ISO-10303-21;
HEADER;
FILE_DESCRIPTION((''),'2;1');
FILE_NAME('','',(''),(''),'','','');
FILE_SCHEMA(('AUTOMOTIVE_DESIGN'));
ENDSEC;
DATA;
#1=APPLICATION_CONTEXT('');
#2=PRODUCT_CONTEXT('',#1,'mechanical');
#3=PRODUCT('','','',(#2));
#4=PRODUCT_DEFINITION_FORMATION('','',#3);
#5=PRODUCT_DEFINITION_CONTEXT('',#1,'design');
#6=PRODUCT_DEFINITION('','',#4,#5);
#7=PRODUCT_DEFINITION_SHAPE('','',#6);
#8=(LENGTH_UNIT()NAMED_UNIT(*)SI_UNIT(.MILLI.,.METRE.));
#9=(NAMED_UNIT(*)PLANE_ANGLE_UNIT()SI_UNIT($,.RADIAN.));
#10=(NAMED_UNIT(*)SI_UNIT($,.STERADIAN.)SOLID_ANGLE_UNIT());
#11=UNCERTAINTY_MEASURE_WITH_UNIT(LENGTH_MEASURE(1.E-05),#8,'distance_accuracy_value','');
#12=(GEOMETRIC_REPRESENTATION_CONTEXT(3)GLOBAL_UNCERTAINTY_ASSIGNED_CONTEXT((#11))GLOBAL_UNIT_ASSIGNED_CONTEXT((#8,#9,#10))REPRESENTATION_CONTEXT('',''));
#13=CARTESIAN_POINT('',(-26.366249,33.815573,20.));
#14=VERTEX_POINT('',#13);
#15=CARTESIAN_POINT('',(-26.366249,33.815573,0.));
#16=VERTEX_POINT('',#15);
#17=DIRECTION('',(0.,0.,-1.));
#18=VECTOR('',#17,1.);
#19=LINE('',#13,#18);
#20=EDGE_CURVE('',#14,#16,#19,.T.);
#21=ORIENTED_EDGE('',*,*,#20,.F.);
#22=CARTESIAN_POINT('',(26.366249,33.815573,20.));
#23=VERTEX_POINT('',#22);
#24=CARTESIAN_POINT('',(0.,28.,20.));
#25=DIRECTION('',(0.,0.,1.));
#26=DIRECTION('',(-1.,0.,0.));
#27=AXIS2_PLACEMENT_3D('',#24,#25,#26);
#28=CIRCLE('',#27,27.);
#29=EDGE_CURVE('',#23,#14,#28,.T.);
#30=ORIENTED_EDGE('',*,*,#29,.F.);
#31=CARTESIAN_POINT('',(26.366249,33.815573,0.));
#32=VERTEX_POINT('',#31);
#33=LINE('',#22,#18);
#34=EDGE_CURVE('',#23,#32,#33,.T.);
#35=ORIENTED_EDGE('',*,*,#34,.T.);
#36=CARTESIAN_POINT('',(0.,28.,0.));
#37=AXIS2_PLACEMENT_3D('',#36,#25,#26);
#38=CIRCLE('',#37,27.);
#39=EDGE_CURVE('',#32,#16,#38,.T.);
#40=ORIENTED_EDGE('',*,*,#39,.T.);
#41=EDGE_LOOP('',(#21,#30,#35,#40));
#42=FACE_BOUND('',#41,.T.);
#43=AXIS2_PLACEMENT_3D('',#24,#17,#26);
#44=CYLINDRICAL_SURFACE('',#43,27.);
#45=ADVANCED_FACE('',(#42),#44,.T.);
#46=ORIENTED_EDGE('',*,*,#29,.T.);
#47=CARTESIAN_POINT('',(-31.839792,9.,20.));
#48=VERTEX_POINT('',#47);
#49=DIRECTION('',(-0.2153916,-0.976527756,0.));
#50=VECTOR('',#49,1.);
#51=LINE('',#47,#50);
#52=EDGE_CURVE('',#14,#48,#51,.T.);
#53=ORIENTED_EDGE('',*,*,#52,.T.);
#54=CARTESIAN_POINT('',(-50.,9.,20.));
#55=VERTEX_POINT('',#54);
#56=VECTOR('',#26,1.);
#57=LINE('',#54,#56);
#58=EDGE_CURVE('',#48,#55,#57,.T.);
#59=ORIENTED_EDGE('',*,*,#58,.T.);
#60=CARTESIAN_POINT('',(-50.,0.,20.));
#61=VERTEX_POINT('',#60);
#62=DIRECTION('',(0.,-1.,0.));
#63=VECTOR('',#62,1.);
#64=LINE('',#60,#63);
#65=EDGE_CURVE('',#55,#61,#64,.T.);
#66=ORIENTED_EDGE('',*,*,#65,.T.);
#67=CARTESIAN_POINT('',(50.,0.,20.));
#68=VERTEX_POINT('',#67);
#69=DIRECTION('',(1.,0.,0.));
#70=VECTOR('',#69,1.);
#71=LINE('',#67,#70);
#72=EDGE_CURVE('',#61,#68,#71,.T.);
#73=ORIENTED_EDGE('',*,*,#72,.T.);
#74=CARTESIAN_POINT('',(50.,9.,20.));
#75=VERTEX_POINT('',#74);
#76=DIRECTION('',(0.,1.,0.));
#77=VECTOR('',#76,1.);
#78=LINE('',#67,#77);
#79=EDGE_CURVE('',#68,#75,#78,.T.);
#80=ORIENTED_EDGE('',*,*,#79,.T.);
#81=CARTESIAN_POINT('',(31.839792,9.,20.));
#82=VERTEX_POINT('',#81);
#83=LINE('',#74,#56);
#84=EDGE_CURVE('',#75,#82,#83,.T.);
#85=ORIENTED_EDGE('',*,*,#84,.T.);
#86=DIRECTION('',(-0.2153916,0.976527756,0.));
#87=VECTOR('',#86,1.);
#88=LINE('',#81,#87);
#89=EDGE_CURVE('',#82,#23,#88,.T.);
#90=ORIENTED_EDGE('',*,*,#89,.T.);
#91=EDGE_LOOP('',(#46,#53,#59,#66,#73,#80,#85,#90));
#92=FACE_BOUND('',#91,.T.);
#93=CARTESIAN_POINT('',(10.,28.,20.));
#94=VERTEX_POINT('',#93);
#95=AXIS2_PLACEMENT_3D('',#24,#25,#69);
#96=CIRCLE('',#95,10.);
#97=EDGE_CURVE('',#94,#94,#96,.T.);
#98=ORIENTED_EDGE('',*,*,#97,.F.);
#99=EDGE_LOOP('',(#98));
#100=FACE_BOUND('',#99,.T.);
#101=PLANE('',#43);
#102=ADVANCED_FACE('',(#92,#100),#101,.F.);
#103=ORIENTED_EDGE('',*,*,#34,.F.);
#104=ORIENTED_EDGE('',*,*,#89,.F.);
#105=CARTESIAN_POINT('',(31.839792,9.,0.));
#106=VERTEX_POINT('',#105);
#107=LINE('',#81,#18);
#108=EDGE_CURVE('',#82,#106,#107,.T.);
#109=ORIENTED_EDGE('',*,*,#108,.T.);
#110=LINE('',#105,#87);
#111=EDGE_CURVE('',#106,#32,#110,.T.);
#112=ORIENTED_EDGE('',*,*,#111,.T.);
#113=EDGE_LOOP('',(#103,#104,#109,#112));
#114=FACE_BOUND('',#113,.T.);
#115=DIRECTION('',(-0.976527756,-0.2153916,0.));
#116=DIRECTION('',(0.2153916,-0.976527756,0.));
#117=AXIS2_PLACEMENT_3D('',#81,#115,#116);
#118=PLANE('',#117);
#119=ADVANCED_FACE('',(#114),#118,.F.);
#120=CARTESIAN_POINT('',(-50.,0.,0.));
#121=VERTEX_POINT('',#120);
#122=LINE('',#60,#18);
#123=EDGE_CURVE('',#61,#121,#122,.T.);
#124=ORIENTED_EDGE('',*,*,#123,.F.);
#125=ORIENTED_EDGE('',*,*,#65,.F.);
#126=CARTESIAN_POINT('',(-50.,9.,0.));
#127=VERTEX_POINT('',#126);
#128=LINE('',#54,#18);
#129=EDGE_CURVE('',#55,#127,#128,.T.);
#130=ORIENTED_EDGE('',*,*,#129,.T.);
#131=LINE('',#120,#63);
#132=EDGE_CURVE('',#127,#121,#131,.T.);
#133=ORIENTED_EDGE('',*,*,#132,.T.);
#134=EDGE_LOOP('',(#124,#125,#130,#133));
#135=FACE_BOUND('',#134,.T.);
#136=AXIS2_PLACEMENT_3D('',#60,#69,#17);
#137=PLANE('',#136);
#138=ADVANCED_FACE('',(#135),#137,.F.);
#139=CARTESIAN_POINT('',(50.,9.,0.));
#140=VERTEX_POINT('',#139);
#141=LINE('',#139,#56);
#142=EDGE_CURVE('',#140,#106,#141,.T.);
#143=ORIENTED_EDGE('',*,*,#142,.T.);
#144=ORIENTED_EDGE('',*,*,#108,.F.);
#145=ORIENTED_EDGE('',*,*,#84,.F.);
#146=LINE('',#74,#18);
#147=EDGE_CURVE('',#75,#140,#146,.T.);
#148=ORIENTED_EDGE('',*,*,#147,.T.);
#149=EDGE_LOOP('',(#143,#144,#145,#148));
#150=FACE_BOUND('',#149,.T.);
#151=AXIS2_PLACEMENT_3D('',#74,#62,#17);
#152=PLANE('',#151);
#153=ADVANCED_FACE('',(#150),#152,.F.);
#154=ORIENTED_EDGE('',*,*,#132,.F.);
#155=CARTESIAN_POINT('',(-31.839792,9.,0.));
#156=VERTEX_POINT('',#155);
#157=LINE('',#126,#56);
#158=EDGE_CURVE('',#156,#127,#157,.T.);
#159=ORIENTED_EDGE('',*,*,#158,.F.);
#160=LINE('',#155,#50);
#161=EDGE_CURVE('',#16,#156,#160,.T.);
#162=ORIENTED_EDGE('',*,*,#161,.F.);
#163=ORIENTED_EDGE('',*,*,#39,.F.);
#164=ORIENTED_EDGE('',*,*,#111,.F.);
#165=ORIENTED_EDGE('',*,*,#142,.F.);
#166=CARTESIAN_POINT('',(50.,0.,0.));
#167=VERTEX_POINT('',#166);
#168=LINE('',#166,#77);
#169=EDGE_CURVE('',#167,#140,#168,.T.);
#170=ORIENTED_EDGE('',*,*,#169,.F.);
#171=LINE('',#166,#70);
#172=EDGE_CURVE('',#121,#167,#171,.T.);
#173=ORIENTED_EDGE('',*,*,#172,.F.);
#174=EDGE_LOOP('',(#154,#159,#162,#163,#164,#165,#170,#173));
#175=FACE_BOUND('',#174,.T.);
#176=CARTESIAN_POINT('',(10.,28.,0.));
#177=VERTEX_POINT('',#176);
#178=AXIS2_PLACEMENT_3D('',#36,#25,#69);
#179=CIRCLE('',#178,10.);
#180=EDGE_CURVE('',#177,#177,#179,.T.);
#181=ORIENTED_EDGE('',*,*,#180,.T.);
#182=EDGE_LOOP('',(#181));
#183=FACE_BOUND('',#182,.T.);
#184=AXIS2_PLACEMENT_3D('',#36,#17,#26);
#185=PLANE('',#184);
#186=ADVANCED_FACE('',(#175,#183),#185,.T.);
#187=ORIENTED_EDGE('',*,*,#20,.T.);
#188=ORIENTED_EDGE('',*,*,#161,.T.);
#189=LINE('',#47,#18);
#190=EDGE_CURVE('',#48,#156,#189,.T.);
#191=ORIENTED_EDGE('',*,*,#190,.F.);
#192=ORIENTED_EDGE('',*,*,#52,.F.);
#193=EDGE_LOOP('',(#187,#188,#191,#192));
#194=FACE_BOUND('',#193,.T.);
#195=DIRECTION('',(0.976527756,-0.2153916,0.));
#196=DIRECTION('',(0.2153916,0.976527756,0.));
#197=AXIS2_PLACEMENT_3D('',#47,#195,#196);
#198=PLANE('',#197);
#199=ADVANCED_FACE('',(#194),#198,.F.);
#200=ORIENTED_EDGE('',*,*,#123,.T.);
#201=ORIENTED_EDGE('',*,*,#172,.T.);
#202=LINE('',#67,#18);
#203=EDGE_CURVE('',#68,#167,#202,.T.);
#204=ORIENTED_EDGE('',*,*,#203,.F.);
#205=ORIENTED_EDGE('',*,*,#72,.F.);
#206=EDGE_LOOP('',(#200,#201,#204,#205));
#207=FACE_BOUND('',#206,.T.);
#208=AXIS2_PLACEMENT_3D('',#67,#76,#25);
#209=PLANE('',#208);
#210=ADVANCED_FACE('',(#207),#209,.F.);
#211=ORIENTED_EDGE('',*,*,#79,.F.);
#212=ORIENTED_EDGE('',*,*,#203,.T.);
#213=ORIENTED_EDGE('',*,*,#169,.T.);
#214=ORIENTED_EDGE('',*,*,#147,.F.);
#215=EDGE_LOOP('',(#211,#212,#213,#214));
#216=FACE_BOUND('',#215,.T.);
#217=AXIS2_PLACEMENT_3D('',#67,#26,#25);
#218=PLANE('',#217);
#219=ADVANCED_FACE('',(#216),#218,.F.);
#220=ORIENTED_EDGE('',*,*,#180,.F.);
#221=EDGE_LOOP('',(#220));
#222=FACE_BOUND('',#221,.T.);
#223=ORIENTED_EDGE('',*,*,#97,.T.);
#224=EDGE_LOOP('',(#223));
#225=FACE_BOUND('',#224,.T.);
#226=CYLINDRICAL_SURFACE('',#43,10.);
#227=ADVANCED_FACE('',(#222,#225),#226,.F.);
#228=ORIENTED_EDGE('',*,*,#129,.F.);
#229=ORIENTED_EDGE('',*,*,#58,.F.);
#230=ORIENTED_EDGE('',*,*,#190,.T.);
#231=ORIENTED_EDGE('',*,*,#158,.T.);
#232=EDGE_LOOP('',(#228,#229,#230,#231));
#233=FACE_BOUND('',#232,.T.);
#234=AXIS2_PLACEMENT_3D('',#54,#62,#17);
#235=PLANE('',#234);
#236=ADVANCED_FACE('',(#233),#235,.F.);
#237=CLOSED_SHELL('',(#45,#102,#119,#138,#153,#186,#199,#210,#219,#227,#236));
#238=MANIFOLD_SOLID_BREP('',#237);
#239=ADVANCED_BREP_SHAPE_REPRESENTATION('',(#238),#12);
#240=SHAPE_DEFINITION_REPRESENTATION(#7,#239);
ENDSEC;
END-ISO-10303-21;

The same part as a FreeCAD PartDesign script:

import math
import FreeCAD as App
import Part
import Sketcher

doc = App.newDocument("Part")
body = doc.addObject("PartDesign::Body", "Body")

sketch1 = body.newObject("Sketcher::SketchObject", "Sketch")
sketch1.AttachmentSupport = (doc.getObject("XY_Plane"), [""])
sketch1.MapMode = "FlatFace"
sketch1.addGeometry([
    Part.LineSegment(App.Vector(-50, 0, 0), App.Vector(50, 0, 0)),
    Part.LineSegment(App.Vector(50, 0, 0), App.Vector(50, 9, 0)),
    Part.LineSegment(App.Vector(50, 9, 0), App.Vector(32, 9, 0)),
    Part.LineSegment(App.Vector(32, 9, 0), App.Vector(26, 34, 0)),
    Part.ArcOfCircle(Part.Circle(App.Vector(0, 28, 0), App.Vector(0, 0, 1), 27), math.radians(12), math.radians(168)),
    Part.LineSegment(App.Vector(-26, 34, 0), App.Vector(-32, 9, 0)),
    Part.LineSegment(App.Vector(-32, 9, 0), App.Vector(-50, 9, 0)),
    Part.LineSegment(App.Vector(-50, 9, 0), App.Vector(-50, 0, 0)),
    Part.Circle(App.Vector(0, 28, 0), App.Vector(0, 0, 1), 10),
], False)
sketch1.addConstraint([
    Sketcher.Constraint("Coincident", 0, 2, 1, 1),
    Sketcher.Constraint("Coincident", 1, 2, 2, 1),
    Sketcher.Constraint("Coincident", 2, 2, 3, 1),
    Sketcher.Constraint("Tangent", 3, 2, 4, 1),
    Sketcher.Constraint("Tangent", 4, 2, 5, 1),
    Sketcher.Constraint("Coincident", 5, 2, 6, 1),
    Sketcher.Constraint("Coincident", 6, 2, 7, 1),
    Sketcher.Constraint("Coincident", 7, 2, 0, 1),
    Sketcher.Constraint("Horizontal", 0),
    Sketcher.Constraint("Vertical", 1),
    Sketcher.Constraint("Horizontal", 2),
    Sketcher.Constraint("Horizontal", 6),
    Sketcher.Constraint("Vertical", 7),
    Sketcher.Constraint("Coincident", 8, 3, 4, 3),
    Sketcher.Constraint("Symmetric", 0, 2, 7, 2, -1, 1),
    Sketcher.Constraint("Symmetric", 3, 2, 4, 2, -2),
    Sketcher.Constraint("Horizontal", 2, 2, 5, 2),
    Sketcher.Constraint("Diameter", 8, 20.0),
    Sketcher.Constraint("Radius", 4, 27.0),
    Sketcher.Constraint("DistanceX", 0, 1, 0, 2, 100.0),
    Sketcher.Constraint("DistanceY", 1, 1, 1, 2, 9.0),
    Sketcher.Constraint("DistanceY", -1, 1, 4, 3, 28.0),
    Sketcher.Constraint("DistanceX", 2, 2, 2, 1, 18.160208),
])
pad1 = body.newObject("PartDesign::Pad", "Pad")
pad1.Profile = sketch1
pad1.Length = 20

doc.recompute()
